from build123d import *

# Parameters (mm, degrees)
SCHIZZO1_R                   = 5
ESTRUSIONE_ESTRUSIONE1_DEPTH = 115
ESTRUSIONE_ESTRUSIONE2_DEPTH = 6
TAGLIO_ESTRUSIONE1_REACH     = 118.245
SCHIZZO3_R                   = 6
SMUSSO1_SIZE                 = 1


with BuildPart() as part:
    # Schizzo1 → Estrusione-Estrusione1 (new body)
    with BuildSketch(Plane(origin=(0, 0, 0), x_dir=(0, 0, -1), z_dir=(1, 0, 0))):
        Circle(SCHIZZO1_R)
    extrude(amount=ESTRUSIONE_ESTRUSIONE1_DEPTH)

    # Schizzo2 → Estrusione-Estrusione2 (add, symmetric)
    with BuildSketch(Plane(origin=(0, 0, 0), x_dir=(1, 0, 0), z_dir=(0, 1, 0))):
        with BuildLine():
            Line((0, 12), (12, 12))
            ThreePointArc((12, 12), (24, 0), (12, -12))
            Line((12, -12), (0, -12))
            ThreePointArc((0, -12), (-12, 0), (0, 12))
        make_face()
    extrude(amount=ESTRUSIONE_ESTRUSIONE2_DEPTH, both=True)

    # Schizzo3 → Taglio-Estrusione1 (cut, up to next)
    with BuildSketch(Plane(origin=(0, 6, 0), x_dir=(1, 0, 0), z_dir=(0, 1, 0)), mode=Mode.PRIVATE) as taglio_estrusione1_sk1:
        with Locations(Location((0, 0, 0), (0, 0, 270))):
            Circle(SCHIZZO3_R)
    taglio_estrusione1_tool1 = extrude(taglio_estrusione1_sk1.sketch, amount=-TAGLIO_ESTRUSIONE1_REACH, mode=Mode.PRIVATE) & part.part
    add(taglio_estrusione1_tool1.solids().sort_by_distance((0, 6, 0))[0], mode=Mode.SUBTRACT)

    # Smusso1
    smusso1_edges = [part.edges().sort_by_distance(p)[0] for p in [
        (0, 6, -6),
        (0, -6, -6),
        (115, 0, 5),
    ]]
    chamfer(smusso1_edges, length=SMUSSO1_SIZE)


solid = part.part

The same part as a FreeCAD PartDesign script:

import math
import FreeCAD as App
import Part
import Sketcher
Q = App.Units.Quantity


def edges_at(feature, points):
    """Names of the edges that pass closest to the given points."""
    edges = feature.Shape.Edges
    near = lambda p: min(range(len(edges)), key=lambda i: edges[i].distToShape(Part.Vertex(*p))[0])
    return sorted({f"Edge{near(p) + 1}" for p in points})

doc = App.newDocument("Part")
params = doc.addObject("Spreadsheet::Sheet", "Params")
for row, (alias, value) in enumerate([
    ("sketch1_diameter", "10 mm"),
    ("pad1_length", "115 mm"),
    ("sketch2_radius", "12 mm"),
    ("sketch2_width", "12 mm"),
    ("pad2_length", "12 mm"),
    ("sketch3_diameter", "12 mm"),
    ("chamfer_size", "1 mm"),
], start=1):
    params.set(f"A{row}", alias)
    params.set(f"B{row}", "=" + value)
    params.setAlias(f"B{row}", alias)

body = doc.addObject("PartDesign::Body", "Body")

sketch1 = body.newObject("Sketcher::SketchObject", "Sketch")
sketch1.AttachmentSupport = (doc.getObject("YZ_Plane"), [""])
sketch1.MapMode = "FlatFace"
sketch1.addGeometry(Part.Circle(App.Vector(0, 0, 0), App.Vector(0, 0, 1), 5), False)
sketch1.addConstraint([
    Sketcher.Constraint("Coincident", 0, 3, -1, 1),
    Sketcher.Constraint("Diameter", 0, Q("10 mm")),
])
sketch1.setExpression("Constraints[1]", "Params.sketch1_diameter")
pad1 = body.newObject("PartDesign::Pad", "Pad")
pad1.Profile = sketch1
pad1.setExpression("Length", "Params.pad1_length")

sketch2 = body.newObject("Sketcher::SketchObject", "Sketch001")
sketch2.AttachmentSupport = (doc.getObject("XZ_Plane"), [""])
sketch2.MapMode = "FlatFace"
sketch2.addGeometry([
    Part.LineSegment(App.Vector(12, -12, 0), App.Vector(0, -12, 0)),
    Part.ArcOfCircle(Part.Circle(App.Vector(0, 0, 0), App.Vector(0, 0, 1), 12), math.radians(90), math.radians(270)),
    Part.LineSegment(App.Vector(0, 12, 0), App.Vector(12, 12, 0)),
    Part.ArcOfCircle(Part.Circle(App.Vector(12, 0, 0), App.Vector(0, 0, 1), 12), math.radians(-90), math.radians(90)),
], False)
sketch2.addConstraint([
    Sketcher.Constraint("Tangent", 0, 2, 1, 2),
    Sketcher.Constraint("Tangent", 1, 1, 2, 1),
    Sketcher.Constraint("Tangent", 2, 2, 3, 2),
    Sketcher.Constraint("Tangent", 3, 1, 0, 1),
    Sketcher.Constraint("Horizontal", 0),
    Sketcher.Constraint("Horizontal", 2),
    Sketcher.Constraint("Coincident", 1, 3, -1, 1),
    Sketcher.Constraint("Radius", 1, Q("12 mm")),
    Sketcher.Constraint("DistanceX", 0, 2, 0, 1, Q("12 mm")),
])
sketch2.setExpression("Constraints[7]", "Params.sketch2_radius")
sketch2.setExpression("Constraints[8]", "Params.sketch2_width")
pad2 = body.newObject("PartDesign::Pad", "Pad001")
pad2.Profile = sketch2
pad2.setExpression("Length", "Params.pad2_length")
pad2.Midplane = True

sketch3 = body.newObject("Sketcher::SketchObject", "Sketch002")
sketch3.AttachmentSupport = (doc.getObject("XZ_Plane"), [""])
sketch3.MapMode = "FlatFace"
sketch3.AttachmentOffset = App.Placement(App.Vector(0, 0, -6), App.Rotation())
sketch3.addGeometry(Part.Circle(App.Vector(0, 0, 0), App.Vector(0, 0, 1), 6), False)
sketch3.addConstraint([
    Sketcher.Constraint("Coincident", 0, 3, -1, 1),
    Sketcher.Constraint("Diameter", 0, Q("12 mm")),
])
sketch3.setExpression("Constraints[1]", "Params.sketch3_diameter")
pocket1 = body.newObject("PartDesign::Pocket", "Pocket")
pocket1.Profile = sketch3
pocket1.Type = "UpToFirst"
pocket1.Reversed = True
doc.recompute()

chamfer = body.newObject("PartDesign::Chamfer", "Chamfer")
chamfer.Base = (pocket1, edges_at(pocket1, [(0, 6, -6), (0, -6, -6), (115, 0, 5)]))
chamfer.setExpression("Size", "Params.chamfer_size")

doc.recompute()
